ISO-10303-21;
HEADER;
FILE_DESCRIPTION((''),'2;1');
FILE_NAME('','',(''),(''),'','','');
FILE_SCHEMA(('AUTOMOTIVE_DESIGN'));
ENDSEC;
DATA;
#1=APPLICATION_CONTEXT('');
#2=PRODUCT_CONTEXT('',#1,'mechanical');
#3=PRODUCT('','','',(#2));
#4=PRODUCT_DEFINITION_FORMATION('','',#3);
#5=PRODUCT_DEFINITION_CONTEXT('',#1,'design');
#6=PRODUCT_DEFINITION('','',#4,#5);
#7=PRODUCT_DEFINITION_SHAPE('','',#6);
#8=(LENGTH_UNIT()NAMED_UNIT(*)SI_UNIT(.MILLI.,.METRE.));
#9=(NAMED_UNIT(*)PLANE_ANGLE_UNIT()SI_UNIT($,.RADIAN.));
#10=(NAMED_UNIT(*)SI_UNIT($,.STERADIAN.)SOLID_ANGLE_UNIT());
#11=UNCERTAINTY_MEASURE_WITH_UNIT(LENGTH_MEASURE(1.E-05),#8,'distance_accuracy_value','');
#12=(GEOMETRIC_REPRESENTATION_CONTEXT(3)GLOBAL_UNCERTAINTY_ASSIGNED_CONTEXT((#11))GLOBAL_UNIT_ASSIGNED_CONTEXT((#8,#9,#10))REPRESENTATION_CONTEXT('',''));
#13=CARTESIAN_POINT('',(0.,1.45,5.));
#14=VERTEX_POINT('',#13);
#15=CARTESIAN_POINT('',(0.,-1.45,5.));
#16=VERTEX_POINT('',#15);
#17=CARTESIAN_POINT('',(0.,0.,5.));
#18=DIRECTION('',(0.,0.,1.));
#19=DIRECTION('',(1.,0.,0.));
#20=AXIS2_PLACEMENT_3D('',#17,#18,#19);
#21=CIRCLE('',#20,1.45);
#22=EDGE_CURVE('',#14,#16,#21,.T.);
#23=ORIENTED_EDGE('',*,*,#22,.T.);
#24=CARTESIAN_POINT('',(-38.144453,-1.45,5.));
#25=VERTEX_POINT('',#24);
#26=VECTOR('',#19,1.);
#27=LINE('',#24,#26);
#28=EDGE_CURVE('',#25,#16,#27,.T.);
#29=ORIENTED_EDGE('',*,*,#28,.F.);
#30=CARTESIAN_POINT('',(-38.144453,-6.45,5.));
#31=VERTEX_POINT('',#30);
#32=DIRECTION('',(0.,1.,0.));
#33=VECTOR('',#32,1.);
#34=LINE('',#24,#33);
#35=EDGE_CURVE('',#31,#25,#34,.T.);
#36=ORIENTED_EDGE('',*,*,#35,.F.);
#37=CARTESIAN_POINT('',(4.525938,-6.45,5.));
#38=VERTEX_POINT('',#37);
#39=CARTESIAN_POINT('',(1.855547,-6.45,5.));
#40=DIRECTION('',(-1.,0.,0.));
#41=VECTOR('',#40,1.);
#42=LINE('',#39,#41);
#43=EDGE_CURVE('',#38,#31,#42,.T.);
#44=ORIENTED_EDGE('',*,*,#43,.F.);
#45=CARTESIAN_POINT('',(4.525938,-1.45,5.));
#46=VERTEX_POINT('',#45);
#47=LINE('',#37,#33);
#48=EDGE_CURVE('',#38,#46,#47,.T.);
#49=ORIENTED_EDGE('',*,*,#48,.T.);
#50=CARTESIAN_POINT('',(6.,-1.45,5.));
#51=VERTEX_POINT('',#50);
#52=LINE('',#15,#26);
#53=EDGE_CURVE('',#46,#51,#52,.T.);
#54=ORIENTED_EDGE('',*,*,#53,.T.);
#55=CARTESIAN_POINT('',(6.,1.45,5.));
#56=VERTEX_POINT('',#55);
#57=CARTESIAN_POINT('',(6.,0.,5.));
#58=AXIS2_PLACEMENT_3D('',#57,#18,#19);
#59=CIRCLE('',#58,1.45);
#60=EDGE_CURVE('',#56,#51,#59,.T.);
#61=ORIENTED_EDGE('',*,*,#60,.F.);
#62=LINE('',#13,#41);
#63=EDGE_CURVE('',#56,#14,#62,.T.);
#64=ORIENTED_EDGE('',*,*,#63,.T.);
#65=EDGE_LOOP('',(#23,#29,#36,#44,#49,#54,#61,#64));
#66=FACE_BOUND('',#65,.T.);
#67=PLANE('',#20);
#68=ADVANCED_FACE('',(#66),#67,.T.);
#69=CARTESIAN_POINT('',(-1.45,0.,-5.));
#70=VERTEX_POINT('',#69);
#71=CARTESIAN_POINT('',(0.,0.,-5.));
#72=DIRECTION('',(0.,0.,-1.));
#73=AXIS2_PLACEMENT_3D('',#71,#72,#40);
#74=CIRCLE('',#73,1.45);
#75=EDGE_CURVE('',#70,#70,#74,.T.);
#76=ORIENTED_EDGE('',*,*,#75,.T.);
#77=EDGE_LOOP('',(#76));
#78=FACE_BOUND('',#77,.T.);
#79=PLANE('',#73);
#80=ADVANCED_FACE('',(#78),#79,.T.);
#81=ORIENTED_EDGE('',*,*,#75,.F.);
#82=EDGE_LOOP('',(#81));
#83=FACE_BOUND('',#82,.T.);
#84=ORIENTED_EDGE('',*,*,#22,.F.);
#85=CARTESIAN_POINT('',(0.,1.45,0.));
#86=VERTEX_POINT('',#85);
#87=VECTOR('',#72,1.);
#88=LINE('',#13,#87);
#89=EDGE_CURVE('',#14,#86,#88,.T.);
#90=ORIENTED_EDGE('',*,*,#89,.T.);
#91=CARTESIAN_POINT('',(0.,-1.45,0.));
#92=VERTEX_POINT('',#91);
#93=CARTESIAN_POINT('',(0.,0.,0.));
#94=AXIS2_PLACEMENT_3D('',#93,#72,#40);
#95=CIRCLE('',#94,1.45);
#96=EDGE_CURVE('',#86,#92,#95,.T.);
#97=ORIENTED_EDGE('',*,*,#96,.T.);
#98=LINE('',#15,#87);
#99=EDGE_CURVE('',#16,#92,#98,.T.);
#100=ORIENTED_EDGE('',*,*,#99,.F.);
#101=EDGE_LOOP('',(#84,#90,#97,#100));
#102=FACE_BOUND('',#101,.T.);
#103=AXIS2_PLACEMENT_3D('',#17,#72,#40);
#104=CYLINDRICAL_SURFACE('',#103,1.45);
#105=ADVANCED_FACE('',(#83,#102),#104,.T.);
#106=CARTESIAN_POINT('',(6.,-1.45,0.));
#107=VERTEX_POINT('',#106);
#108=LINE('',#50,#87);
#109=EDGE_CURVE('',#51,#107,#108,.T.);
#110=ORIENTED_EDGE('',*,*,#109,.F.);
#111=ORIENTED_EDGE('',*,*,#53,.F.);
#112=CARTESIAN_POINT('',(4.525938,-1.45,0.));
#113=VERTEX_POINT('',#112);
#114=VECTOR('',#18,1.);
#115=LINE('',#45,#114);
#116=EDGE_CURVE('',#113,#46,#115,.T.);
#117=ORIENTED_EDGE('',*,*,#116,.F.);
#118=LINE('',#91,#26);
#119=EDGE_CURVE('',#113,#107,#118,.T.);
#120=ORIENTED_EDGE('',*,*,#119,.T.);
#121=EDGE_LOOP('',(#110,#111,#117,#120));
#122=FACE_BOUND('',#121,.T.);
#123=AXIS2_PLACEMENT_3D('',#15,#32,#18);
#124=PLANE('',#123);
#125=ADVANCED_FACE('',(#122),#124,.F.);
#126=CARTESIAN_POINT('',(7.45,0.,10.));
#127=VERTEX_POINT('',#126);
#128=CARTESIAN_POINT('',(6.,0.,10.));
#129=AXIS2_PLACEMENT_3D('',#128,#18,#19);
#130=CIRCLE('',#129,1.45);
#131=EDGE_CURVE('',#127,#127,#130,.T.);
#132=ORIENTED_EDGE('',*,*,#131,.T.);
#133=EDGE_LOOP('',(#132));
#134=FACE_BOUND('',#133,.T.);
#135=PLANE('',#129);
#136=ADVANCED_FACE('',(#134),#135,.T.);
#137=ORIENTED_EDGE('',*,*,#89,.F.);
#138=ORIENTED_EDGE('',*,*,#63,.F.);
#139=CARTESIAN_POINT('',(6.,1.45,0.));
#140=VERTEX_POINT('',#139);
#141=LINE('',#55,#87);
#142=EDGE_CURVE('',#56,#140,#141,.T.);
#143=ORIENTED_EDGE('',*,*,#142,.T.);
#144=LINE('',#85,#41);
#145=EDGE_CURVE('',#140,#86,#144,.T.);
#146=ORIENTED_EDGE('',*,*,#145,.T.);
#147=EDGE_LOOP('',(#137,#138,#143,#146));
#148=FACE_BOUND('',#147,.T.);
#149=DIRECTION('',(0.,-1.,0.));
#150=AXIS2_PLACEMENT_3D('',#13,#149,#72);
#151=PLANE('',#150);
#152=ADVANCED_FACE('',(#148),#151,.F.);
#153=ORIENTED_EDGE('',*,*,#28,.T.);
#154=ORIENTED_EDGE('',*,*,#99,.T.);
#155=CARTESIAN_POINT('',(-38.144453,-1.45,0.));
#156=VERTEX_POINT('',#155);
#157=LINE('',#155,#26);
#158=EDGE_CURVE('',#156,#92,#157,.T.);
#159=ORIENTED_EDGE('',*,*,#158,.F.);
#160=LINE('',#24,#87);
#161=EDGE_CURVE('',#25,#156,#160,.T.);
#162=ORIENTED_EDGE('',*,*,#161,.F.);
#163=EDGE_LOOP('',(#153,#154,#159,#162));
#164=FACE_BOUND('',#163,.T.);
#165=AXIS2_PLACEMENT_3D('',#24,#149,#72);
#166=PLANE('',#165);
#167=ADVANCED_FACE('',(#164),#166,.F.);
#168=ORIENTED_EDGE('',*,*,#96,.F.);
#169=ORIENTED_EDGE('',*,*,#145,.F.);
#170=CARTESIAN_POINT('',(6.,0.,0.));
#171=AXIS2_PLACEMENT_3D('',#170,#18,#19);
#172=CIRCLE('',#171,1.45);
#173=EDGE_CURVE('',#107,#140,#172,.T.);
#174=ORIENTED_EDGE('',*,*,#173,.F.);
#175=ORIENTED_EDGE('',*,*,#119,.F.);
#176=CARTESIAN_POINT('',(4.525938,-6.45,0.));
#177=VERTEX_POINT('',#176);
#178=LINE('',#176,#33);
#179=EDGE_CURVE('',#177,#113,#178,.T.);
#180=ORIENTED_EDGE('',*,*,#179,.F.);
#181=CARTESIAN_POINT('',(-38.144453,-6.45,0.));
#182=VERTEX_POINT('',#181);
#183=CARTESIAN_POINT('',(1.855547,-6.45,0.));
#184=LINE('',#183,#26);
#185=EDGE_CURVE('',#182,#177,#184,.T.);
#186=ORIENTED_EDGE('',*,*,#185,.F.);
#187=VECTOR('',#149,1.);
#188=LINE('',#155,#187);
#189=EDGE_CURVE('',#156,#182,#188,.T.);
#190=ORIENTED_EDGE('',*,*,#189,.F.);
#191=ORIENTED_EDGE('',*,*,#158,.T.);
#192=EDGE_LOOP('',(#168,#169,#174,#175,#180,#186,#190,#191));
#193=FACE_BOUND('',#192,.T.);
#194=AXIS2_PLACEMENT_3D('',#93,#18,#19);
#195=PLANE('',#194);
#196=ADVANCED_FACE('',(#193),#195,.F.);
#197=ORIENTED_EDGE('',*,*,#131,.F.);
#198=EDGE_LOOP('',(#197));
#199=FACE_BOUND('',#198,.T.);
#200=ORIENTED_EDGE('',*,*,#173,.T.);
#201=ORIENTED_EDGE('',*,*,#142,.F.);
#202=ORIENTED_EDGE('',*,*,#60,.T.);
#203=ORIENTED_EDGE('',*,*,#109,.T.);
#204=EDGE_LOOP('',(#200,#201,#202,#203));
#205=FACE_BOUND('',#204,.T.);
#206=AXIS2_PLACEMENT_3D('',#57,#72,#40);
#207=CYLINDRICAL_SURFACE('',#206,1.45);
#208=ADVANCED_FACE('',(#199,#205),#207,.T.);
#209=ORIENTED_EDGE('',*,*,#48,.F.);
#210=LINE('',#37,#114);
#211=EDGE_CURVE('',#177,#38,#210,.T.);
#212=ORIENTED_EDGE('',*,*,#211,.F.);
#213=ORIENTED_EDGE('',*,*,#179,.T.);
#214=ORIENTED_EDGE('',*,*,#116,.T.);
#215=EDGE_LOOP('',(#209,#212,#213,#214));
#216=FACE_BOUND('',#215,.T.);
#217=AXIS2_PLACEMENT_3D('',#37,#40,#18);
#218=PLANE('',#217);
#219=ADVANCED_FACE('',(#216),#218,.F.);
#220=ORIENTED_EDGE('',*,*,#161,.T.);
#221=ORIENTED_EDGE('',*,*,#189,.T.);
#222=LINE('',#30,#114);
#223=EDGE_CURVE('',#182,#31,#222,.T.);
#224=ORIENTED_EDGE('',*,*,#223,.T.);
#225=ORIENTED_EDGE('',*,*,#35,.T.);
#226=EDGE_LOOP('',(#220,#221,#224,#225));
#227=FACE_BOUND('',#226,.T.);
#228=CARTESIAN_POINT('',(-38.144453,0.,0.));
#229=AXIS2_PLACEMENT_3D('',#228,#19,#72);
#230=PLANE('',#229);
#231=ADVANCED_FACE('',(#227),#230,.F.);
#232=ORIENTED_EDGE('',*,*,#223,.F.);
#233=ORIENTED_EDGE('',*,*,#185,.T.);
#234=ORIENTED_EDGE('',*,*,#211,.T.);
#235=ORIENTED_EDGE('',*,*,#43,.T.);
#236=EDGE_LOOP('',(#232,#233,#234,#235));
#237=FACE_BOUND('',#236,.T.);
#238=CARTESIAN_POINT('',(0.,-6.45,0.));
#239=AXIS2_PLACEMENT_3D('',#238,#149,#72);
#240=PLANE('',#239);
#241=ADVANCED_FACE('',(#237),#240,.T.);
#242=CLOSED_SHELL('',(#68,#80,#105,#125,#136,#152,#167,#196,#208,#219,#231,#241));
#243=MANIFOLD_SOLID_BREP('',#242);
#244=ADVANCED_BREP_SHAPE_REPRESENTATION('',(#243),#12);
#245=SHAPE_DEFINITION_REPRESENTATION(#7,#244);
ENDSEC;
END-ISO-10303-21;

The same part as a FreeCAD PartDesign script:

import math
import FreeCAD as App
import Part
import Sketcher
from FreeCAD import Vector


def add_polygon(sketch, points):
    """Adds a closed chain of lines whose ends are joined by coincident constraints."""
    first, n = sketch.GeometryCount, len(points)
    for a, b in zip(points, points[1:] + points[:1]):
        sketch.addGeometry(Part.LineSegment(App.Vector(*a, 0), App.Vector(*b, 0)), False)
    for i in range(n):
        sketch.addConstraint(Sketcher.Constraint("Coincident", first + i, 2, first + (i + 1) % n, 1))

doc = App.newDocument("Part")
body = doc.addObject("PartDesign::Body", "Body")

sketch1 = doc.addObject("Sketcher::SketchObject", "Sketch")
body.addObject(sketch1)
sketch1.AttachmentSupport = (doc.XY_Plane, [""])
sketch1.MapMode = "FlatFace"
sketch1.addGeometry(Part.LineSegment(Vector(6, 1.4, 0), Vector(0, 1.4, 0)), False)
sketch1.addGeometry(Part.ArcOfCircle(Part.Circle(Vector(0, 0, 0), Vector(0, 0, 1), 1.4), math.radians(90), math.radians(270)), False)
sketch1.addGeometry(Part.LineSegment(Vector(0, -1.4, 0), Vector(6, -1.4, 0)), False)
sketch1.addGeometry(Part.ArcOfCircle(Part.Circle(Vector(6, 0, 0), Vector(0, 0, 1), 1.4), math.radians(-90), math.radians(90)), False)
sketch1.addConstraint(Sketcher.Constraint("Tangent", 0, 2, 1, 1))
sketch1.addConstraint(Sketcher.Constraint("Tangent", 1, 2, 2, 1))
sketch1.addConstraint(Sketcher.Constraint("Tangent", 2, 2, 3, 1))
sketch1.addConstraint(Sketcher.Constraint("Tangent", 3, 2, 0, 1))
sketch1.addConstraint(Sketcher.Constraint("Horizontal", 0))
sketch1.addConstraint(Sketcher.Constraint("Horizontal", 2))
sketch1.addConstraint(Sketcher.Constraint("Coincident", 1, 3, -1, 1))
sketch1.addConstraint(Sketcher.Constraint("DistanceX", 0, 2, 0, 1, 6.0))
sketch1.addConstraint(Sketcher.Constraint("Radius", 1, 1.45))
pad1 = doc.addObject("PartDesign::Pad", "Pad")
body.addObject(pad1)
pad1.Profile = sketch1
pad1.Length = 5

sketch2 = doc.addObject("Sketcher::SketchObject", "Sketch001")
body.addObject(sketch2)
sketch2.AttachmentSupport = (doc.XY_Plane, [""])
sketch2.MapMode = "FlatFace"
sketch2.AttachmentOffset = App.Placement(Vector(0, 0, 5), App.Rotation())
sketch2.addGeometry(Part.Circle(Vector(6, 0, 0), Vector(0, 0, 1), 1.4), False)
sketch2.addConstraint(Sketcher.Constraint("PointOnObject", 0, 3, -1))
sketch2.addConstraint(Sketcher.Constraint("Diameter", 0, 2.9))
sketch2.addConstraint(Sketcher.Constraint("DistanceX", -1, 1, 0, 3, 6.0))
pad2 = doc.addObject("PartDesign::Pad", "Pad001")
body.addObject(pad2)
pad2.Profile = sketch2
pad2.Length = 5

sketch3 = doc.addObject("Sketcher::SketchObject", "Sketch002")
body.addObject(sketch3)
sketch3.AttachmentSupport = (doc.XY_Plane, [""])
sketch3.MapMode = "FlatFace"
sketch3.addGeometry(Part.Circle(Vector(0, 0, 0), Vector(0, 0, 1), 1.4), False)
sketch3.addConstraint(Sketcher.Constraint("Coincident", 0, 3, -1, 1))
sketch3.addConstraint(Sketcher.Constraint("Diameter", 0, 2.9))
pad3 = doc.addObject("PartDesign::Pad", "Pad002")
body.addObject(pad3)
pad3.Profile = sketch3
pad3.Length = 5
pad3.Reversed = True

sketch4 = doc.addObject("Sketcher::SketchObject", "Sketch003")
body.addObject(sketch4)
sketch4.AttachmentSupport = (doc.XZ_Plane, [""])
sketch4.MapMode = "FlatFace"
sketch4.AttachmentOffset = App.Placement(Vector(0, 0, 1.45), App.Rotation())
add_polygon(sketch4, [(1.9, 5), (1.9, 0), (4.5, 0), (4.5, 5)])
sketch4.addConstraint(Sketcher.Constraint("Vertical", 0))
sketch4.addConstraint(Sketcher.Constraint("Horizontal", 1))
sketch4.addConstraint(Sketcher.Constraint("Vertical", 2))
sketch4.addConstraint(Sketcher.Constraint("Horizontal", 3))
sketch4.addConstraint(Sketcher.Constraint("PointOnObject", 0, 2, -1))
sketch4.addConstraint(Sketcher.Constraint("DistanceY", 0, 2, 0, 1, 5.0))
sketch4.addConstraint(Sketcher.Constraint("DistanceX", 1, 1, 1, 2, 2.670391))
sketch4.addConstraint(Sketcher.Constraint("DistanceX", -1, 1, 0, 2, 1.855547))
pad4 = doc.addObject("PartDesign::Pad", "Pad003")
body.addObject(pad4)
pad4.Profile = sketch4
pad4.Length = 5

sketch5 = doc.addObject("Sketcher::SketchObject", "Sketch004")
body.addObject(sketch5)
sketch5.AttachmentSupport = (doc.YZ_Plane, [""])
sketch5.MapMode = "FlatFace"
sketch5.AttachmentOffset = App.Placement(Vector(0, 0, 1.855547), App.Rotation())
add_polygon(sketch5, [(-1, 0), (-6, 0), (-6, 5), (-1, 5)])
sketch5.addConstraint(Sketcher.Constraint("Horizontal", 0))
sketch5.addConstraint(Sketcher.Constraint("Vertical", 1))
sketch5.addConstraint(Sketcher.Constraint("Horizontal", 2))
sketch5.addConstraint(Sketcher.Constraint("Vertical", 3))
sketch5.addConstraint(Sketcher.Constraint("PointOnObject", 0, 2, -1))
sketch5.addConstraint(Sketcher.Constraint("Equal", 2, 1))
sketch5.addConstraint(Sketcher.Constraint("DistanceX", 0, 2, 0, 1, 5.0))
sketch5.addConstraint(Sketcher.Constraint("DistanceX", 0, 2, -1, 1, 6.45))
pad5 = doc.addObject("PartDesign::Pad", "Pad004")
body.addObject(pad5)
pad5.Profile = sketch5
pad5.Length = 40
pad5.Reversed = True

doc.recompute()
